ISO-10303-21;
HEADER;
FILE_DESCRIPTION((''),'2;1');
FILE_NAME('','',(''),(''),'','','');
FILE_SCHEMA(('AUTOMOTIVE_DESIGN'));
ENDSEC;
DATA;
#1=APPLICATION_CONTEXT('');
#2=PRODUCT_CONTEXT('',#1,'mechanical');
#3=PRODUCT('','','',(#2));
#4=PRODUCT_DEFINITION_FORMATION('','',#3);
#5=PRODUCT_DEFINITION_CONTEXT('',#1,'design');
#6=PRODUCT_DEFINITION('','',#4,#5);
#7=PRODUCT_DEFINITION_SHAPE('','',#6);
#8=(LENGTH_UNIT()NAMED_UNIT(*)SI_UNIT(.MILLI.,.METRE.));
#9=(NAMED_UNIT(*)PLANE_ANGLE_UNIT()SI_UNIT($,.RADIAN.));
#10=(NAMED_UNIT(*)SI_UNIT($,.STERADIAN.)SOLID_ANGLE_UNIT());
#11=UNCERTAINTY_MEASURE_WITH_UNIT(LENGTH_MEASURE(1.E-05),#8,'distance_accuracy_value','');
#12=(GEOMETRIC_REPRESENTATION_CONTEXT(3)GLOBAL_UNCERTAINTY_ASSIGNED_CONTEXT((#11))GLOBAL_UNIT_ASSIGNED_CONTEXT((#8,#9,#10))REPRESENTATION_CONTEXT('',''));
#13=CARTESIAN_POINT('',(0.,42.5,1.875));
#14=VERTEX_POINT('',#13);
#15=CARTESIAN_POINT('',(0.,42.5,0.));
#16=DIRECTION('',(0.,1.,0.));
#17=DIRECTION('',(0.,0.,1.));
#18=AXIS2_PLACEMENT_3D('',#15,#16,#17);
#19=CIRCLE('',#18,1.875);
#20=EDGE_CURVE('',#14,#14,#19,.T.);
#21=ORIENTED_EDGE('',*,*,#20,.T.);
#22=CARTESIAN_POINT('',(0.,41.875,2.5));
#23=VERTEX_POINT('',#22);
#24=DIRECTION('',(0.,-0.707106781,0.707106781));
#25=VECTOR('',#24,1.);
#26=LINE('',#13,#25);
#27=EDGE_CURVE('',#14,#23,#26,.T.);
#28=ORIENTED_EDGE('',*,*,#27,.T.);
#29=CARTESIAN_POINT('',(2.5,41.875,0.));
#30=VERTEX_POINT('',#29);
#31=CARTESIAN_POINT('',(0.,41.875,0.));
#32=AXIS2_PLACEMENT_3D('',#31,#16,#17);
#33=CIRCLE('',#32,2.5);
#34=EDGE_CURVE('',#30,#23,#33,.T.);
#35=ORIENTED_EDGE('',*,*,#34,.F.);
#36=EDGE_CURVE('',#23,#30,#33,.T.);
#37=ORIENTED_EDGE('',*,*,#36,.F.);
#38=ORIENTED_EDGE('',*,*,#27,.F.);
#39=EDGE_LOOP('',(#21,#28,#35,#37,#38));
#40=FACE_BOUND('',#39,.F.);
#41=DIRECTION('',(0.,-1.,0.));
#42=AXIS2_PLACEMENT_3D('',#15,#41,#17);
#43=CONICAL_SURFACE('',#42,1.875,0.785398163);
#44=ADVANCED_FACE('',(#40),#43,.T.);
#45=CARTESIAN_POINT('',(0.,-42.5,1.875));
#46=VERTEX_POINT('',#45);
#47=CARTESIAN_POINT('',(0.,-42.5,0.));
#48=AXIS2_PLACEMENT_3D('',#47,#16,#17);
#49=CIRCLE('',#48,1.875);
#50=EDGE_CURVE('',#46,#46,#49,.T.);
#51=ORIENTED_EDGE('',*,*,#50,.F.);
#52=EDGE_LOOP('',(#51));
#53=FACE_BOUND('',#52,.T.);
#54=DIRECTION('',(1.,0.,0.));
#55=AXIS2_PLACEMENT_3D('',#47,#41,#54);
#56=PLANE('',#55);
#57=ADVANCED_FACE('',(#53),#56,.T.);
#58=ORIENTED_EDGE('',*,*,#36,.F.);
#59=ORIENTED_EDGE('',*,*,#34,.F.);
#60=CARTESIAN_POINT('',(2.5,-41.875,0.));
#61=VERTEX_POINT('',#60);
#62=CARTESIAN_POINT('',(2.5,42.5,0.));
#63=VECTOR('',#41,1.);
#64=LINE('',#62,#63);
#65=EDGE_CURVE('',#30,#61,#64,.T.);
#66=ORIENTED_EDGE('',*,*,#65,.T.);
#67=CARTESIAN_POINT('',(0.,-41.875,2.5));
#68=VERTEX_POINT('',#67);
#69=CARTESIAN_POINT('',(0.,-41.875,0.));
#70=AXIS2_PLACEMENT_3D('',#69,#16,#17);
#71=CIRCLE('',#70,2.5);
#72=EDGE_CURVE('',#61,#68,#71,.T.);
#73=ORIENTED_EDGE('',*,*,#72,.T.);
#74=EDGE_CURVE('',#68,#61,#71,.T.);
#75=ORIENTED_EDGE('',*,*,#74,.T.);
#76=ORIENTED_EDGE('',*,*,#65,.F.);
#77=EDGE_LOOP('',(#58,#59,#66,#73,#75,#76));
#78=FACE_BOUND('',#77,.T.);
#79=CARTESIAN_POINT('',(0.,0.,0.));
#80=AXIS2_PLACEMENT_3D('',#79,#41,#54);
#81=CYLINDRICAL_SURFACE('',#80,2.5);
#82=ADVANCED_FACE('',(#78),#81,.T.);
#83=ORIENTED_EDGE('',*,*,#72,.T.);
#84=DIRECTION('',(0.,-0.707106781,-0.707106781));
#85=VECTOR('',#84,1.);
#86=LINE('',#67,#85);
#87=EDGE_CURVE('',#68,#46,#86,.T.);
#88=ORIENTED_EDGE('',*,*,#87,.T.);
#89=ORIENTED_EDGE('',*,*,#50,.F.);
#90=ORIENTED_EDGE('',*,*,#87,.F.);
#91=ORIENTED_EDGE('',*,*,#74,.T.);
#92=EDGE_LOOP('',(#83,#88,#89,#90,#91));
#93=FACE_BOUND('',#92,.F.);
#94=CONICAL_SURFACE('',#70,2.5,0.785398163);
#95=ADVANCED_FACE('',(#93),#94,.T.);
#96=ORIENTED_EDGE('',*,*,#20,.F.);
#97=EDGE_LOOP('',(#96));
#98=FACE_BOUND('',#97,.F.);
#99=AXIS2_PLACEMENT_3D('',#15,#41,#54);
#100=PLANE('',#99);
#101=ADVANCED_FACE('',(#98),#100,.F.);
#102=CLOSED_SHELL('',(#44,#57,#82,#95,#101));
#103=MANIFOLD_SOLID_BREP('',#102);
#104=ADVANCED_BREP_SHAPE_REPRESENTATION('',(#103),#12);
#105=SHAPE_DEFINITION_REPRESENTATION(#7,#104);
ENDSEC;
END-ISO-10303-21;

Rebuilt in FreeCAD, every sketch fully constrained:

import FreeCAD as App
import Part
import Sketcher

V = App.Vector

doc = App.newDocument("Part")
body = doc.addObject("PartDesign::Body", "Body")

# Sketch on XZ plane
sketch1 = body.newObject("Sketcher::SketchObject", "Sketch")
sketch1.AttachmentSupport = (doc.getObject("XZ_Plane"), [""])
sketch1.MapMode = "FlatFace"
sketch1.addGeometry(Part.Circle(V(0, 0, 0), V(0, 0, 1), 2.5), False)
sketch1.addConstraint(Sketcher.Constraint("Coincident", 0, 3, -1, 1))
sketch1.addConstraint(Sketcher.Constraint("Diameter", 0, 5.0))
pad1 = body.newObject("PartDesign::Pad", "Pad")
pad1.Profile = sketch1
pad1.Length = 85
pad1.Midplane = True

# Sketch on YZ plane
sketch2 = body.newObject("Sketcher::SketchObject", "Sketch001")
sketch2.AttachmentSupport = (doc.getObject("YZ_Plane"), [""])
sketch2.MapMode = "FlatFace"
sketch2.addGeometry(Part.LineSegment(V(42.5, 4.5, 0), V(-42.5, 4.5, 0)), False)
sketch2.addGeometry(Part.LineSegment(V(-42.5, 4.5, 0), V(-42.5, 1.9, 0)), False)
sketch2.addGeometry(Part.LineSegment(V(-42.5, 1.9, 0), V(-41.9, 2.5, 0)), False)
sketch2.addGeometry(Part.LineSegment(V(-41.9, 2.5, 0), V(41.9, 2.5, 0)), False)
sketch2.addGeometry(Part.LineSegment(V(41.9, 2.5, 0), V(42.5, 1.9, 0)), False)
sketch2.addGeometry(Part.LineSegment(V(42.5, 1.9, 0), V(42.5, 4.5, 0)), False)
sketch2.addConstraint(Sketcher.Constraint("Coincident", 0, 2, 1, 1))
sketch2.addConstraint(Sketcher.Constraint("Coincident", 1, 2, 2, 1))
sketch2.addConstraint(Sketcher.Constraint("Coincident", 2, 2, 3, 1))
sketch2.addConstraint(Sketcher.Constraint("Coincident", 3, 2, 4, 1))
sketch2.addConstraint(Sketcher.Constraint("Coincident", 4, 2, 5, 1))
sketch2.addConstraint(Sketcher.Constraint("Coincident", 5, 2, 0, 1))
sketch2.addConstraint(Sketcher.Constraint("Horizontal", 0))
sketch2.addConstraint(Sketcher.Constraint("Vertical", 1))
sketch2.addConstraint(Sketcher.Constraint("Horizontal", 3))
sketch2.addConstraint(Sketcher.Constraint("Vertical", 5))
sketch2.addConstraint(Sketcher.Constraint("Symmetric", 1, 2, 4, 2, -2))
sketch2.addConstraint(Sketcher.Constraint("Perpendicular", 2, 4))
sketch2.addConstraint(Sketcher.Constraint("Equal", 2, 4))
sketch2.addConstraint(Sketcher.Constraint("DistanceX", 0, 2, 0, 1, 85.0))
sketch2.addConstraint(Sketcher.Constraint("DistanceY", 2, 2, 0, 2, 2.0))
sketch2.addConstraint(Sketcher.Constraint("DistanceX", 3, 1, 3, 2, 83.75))
sketch2.addConstraint(Sketcher.Constraint("DistanceY", -1, 1, 0, 2, 4.5))
groove = body.newObject("PartDesign::Groove", "Groove")
groove.Profile = sketch2
groove.ReferenceAxis = (sketch2, ["H_Axis"])
groove.Angle = 360

doc.recompute()
